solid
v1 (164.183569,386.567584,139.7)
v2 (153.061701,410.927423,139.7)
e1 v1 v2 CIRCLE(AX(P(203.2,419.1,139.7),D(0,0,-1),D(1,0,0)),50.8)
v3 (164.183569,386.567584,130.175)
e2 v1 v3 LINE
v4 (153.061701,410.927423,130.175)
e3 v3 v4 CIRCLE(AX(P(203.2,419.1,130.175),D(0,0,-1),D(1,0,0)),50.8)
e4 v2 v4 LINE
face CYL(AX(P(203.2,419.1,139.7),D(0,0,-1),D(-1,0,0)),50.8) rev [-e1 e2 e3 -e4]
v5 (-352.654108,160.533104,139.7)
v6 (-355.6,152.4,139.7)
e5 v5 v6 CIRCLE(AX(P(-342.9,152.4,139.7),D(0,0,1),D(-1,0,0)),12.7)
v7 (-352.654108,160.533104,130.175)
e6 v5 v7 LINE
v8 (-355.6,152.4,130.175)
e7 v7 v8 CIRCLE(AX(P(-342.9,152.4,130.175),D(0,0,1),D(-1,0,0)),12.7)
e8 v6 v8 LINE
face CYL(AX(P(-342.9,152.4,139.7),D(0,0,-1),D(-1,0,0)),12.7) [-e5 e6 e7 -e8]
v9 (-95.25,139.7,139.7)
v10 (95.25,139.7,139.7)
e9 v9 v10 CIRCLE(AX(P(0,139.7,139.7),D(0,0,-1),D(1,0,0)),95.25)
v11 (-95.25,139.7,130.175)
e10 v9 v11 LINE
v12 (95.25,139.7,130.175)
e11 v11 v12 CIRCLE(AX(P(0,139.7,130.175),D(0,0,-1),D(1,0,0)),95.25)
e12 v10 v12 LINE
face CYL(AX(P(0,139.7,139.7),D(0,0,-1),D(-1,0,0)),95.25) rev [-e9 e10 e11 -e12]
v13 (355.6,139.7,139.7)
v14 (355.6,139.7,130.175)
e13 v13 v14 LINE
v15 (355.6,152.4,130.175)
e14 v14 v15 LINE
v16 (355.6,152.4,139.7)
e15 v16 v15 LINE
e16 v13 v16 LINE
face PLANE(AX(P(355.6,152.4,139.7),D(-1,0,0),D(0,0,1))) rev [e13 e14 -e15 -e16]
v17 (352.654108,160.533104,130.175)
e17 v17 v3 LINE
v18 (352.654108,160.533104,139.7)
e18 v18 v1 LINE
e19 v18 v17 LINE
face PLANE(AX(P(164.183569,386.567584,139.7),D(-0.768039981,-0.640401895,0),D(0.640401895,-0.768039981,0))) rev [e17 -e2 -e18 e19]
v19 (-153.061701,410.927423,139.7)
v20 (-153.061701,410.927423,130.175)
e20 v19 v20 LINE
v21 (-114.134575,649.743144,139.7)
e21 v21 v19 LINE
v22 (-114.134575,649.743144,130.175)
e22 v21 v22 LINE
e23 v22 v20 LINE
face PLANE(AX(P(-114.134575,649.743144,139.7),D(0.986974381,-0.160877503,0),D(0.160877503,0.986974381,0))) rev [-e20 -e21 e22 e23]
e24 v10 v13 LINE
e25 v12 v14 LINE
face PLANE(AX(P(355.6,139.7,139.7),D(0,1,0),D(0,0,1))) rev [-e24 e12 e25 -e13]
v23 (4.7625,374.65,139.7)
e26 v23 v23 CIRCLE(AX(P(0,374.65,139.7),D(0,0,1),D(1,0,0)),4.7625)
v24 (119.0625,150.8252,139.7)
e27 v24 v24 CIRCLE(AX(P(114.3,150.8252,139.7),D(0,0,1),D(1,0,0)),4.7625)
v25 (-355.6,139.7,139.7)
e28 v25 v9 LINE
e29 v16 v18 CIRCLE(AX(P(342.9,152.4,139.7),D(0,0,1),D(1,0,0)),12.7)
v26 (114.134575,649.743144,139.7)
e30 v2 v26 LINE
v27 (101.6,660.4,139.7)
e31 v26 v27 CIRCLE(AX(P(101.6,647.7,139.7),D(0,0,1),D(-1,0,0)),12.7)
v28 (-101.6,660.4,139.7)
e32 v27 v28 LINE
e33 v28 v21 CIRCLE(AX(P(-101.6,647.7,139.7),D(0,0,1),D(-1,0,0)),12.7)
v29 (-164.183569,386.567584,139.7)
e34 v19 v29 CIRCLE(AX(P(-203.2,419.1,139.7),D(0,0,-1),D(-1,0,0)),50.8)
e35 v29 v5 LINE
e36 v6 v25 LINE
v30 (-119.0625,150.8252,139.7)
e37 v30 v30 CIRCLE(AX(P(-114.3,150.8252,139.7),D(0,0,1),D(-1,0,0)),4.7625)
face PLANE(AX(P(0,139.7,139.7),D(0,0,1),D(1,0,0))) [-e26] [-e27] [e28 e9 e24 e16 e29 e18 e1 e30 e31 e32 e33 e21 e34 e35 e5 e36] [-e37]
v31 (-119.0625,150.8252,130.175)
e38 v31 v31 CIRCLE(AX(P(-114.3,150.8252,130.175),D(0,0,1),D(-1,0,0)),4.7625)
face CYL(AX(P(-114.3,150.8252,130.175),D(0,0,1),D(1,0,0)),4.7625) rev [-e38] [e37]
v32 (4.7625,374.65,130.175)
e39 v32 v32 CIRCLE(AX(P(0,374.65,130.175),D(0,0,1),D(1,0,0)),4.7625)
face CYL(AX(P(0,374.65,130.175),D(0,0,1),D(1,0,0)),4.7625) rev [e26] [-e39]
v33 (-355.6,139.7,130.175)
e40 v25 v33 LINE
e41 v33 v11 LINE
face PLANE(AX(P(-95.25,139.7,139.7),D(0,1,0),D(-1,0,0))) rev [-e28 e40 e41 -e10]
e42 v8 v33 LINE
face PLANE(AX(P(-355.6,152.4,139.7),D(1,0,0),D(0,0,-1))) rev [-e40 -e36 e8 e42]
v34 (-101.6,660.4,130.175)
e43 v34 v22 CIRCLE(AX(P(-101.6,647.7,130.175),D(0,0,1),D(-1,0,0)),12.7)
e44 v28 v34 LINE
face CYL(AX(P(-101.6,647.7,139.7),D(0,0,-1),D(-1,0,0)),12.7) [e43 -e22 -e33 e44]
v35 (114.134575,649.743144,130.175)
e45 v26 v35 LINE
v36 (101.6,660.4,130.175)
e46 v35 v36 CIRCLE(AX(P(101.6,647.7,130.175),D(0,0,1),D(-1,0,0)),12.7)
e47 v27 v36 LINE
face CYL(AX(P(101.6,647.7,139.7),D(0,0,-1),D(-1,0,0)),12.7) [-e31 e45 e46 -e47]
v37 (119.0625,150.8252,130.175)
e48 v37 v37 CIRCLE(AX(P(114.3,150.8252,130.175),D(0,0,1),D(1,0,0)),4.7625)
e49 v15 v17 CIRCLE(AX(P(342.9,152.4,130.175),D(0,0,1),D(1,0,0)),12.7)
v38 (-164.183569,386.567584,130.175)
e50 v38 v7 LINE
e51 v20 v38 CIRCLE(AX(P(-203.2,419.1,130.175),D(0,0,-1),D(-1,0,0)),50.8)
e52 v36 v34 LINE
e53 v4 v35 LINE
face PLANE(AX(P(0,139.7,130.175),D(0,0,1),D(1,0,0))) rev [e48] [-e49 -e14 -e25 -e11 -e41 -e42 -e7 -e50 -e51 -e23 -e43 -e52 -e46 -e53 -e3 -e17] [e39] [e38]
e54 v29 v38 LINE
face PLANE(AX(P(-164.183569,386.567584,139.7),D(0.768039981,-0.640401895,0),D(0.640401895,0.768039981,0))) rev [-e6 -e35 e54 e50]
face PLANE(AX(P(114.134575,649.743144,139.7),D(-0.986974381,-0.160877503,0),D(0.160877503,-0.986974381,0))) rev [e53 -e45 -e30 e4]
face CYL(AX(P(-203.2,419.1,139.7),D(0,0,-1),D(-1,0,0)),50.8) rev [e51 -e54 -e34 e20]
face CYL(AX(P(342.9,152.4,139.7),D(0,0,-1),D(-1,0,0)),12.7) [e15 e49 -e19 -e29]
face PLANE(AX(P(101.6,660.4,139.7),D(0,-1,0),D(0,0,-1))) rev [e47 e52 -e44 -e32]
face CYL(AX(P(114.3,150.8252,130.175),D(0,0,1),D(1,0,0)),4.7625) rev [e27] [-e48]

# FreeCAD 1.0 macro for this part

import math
import FreeCAD as App
import Part
import Sketcher
Q = App.Units.Quantity

doc = App.newDocument("Part")
params = doc.addObject("Spreadsheet::Sheet", "Params")
for row, (alias, value) in enumerate([
    ("sketch1_radius", "2 in"),
    ("sketch1_radius2", "0.5 in"),
    ("sketch1_width", "8 in"),
    ("sketch1_radius3", "3.75 in"),
    ("sketch1_height", "0.5 in"),
    ("pad1_length", "0.375 in"),
    ("sketch2_diameter", "0.375 in"),
], start=1):
    params.set(f"A{row}", alias)
    params.set(f"B{row}", "=" + value)
    params.setAlias(f"B{row}", alias)

body = doc.addObject("PartDesign::Body", "Body")

# Sketch on XY plane
sketch1 = body.newObject("Sketcher::SketchObject", "Sketch")
sketch1.AttachmentSupport = (doc.getObject("XY_Plane"), [""])
sketch1.MapMode = "FlatFace"
sketch1.AttachmentOffset = App.Placement(App.Vector(0, 0, 5.125 * 25.4), App.Rotation())
sketch1.addGeometry([
    Part.LineSegment(App.Vector(-114.134575, 649.743144, 0), App.Vector(-153.061701, 410.927423, 0)),  # 0
    Part.ArcOfCircle(Part.Circle(App.Vector(-203.2, 419.1, 0), App.Vector(0, 0, 1), 50.8), math.radians(-39.821794), math.radians(-9.257833)),  # 1
    Part.LineSegment(App.Vector(-164.183569, 386.567584, 0), App.Vector(-352.654108, 160.533104, 0)),  # 2
    Part.ArcOfCircle(Part.Circle(App.Vector(-342.9, 152.4, 0), App.Vector(0, 0, 1), 12.7), math.radians(140.178206), math.radians(180)),  # 3
    Part.LineSegment(App.Vector(-355.6, 152.4, 0), App.Vector(-355.6, 139.7, 0)),  # 4
    Part.LineSegment(App.Vector(-355.6, 139.7, 0), App.Vector(-95.25, 139.7, 0)),  # 5
    Part.ArcOfCircle(Part.Circle(App.Vector(0, 139.7, 0), App.Vector(0, 0, 1), 95.25), math.radians(0), math.radians(180)),  # 6
    Part.LineSegment(App.Vector(95.25, 139.7, 0), App.Vector(355.6, 139.7, 0)),  # 7
    Part.LineSegment(App.Vector(355.6, 139.7, 0), App.Vector(355.6, 152.4, 0)),  # 8
    Part.ArcOfCircle(Part.Circle(App.Vector(342.9, 152.4, 0), App.Vector(0, 0, 1), 12.7), math.radians(0), math.radians(39.821794)),  # 9
    Part.LineSegment(App.Vector(352.654108, 160.533104, 0), App.Vector(164.183569, 386.567584, 0)),  # 10
    Part.ArcOfCircle(Part.Circle(App.Vector(203.2, 419.1, 0), App.Vector(0, 0, 1), 50.8), math.radians(-170.742167), math.radians(-140.178206)),  # 11
    Part.LineSegment(App.Vector(153.061701, 410.927423, 0), App.Vector(114.134575, 649.743144, 0)),  # 12
    Part.ArcOfCircle(Part.Circle(App.Vector(101.6, 647.7, 0), App.Vector(0, 0, 1), 12.7), math.radians(9.257833), math.radians(90)),  # 13
    Part.LineSegment(App.Vector(101.6, 660.4, 0), App.Vector(-101.6, 660.4, 0)),  # 14
    Part.ArcOfCircle(Part.Circle(App.Vector(-101.6, 647.7, 0), App.Vector(0, 0, 1), 12.7), math.radians(90), math.radians(170.742167)),  # 15
], False)
sketch1.addConstraint([
    Sketcher.Constraint("Tangent", 0, 2, 1, 2),
    Sketcher.Constraint("Tangent", 1, 1, 2, 1),
    Sketcher.Constraint("Tangent", 2, 2, 3, 1),
    Sketcher.Constraint("Tangent", 3, 2, 4, 1),
    Sketcher.Constraint("Coincident", 4, 2, 5, 1),
    Sketcher.Constraint("Coincident", 5, 2, 6, 2),
    Sketcher.Constraint("Coincident", 6, 1, 7, 1),
    Sketcher.Constraint("Coincident", 7, 2, 8, 1),
    Sketcher.Constraint("Tangent", 8, 2, 9, 1),
    Sketcher.Constraint("Tangent", 9, 2, 10, 1),
    Sketcher.Constraint("Tangent", 10, 2, 11, 2),
    Sketcher.Constraint("Tangent", 11, 1, 12, 1),
    Sketcher.Constraint("Tangent", 12, 2, 13, 1),
    Sketcher.Constraint("Tangent", 13, 2, 14, 1),
    Sketcher.Constraint("Tangent", 14, 2, 15, 1),
    Sketcher.Constraint("Tangent", 15, 2, 0, 1),
    Sketcher.Constraint("Vertical", 4),
    Sketcher.Constraint("Horizontal", 5),
    Sketcher.Constraint("Horizontal", 7),
    Sketcher.Constraint("Vertical", 8),
    Sketcher.Constraint("Horizontal", 14),
    Sketcher.Constraint("Equal", 3, 9),
    Sketcher.Constraint("Equal", 1, 11),
    Sketcher.Constraint("Equal", 9, 13),
    Sketcher.Constraint("Equal", 13, 15),
    Sketcher.Constraint("Symmetric", 3, 3, 9, 3, -2),
    Sketcher.Constraint("Symmetric", 1, 3, 11, 3, -2),
    Sketcher.Constraint("Symmetric", 5, 2, 6, 1, -2),
    Sketcher.Constraint("Horizontal", 6, 3, 4, 2),
    Sketcher.Constraint("Horizontal", 0, 2, 11, 1),
    Sketcher.Constraint("Radius", 1, Q("2 in")),
    Sketcher.Constraint("Radius", 3, Q("0.5 in")),
    Sketcher.Constraint("DistanceX", 14, 2, 14, 1, Q("8 in")),
    Sketcher.Constraint("Radius", 6, Q("3.75 in")),
    Sketcher.Constraint("DistanceY", 4, 2, 4, 1, Q("0.5 in")),
    Sketcher.Constraint("DistanceX", 1, 3, -1, 1, Q("8 in")),
    Sketcher.Constraint("DistanceY", -1, 1, 3, 3, Q("6 in")),
    Sketcher.Constraint("DistanceX", 3, 2, -1, 1, Q("14 in")),
    Sketcher.Constraint("DistanceY", -1, 1, 13, 2, Q("26 in")),
    Sketcher.Constraint("DistanceY", 6, 3, 1, 3, Q("11 in")),
])
sketch1.setExpression("Constraints[30]", "Params.sketch1_radius")
sketch1.setExpression("Constraints[31]", "Params.sketch1_radius2")
sketch1.setExpression("Constraints[32]", "Params.sketch1_width")
sketch1.setExpression("Constraints[33]", "Params.sketch1_radius3")
sketch1.setExpression("Constraints[34]", "Params.sketch1_height")
pad1 = body.newObject("PartDesign::Pad", "Pad")
pad1.Profile = sketch1
pad1.setExpression("Length", "Params.pad1_length")

# Sketch on XY plane
sketch2 = body.newObject("Sketcher::SketchObject", "Sketch001")
sketch2.AttachmentSupport = (doc.getObject("XY_Plane"), [""])
sketch2.MapMode = "FlatFace"
sketch2.AttachmentOffset = App.Placement(App.Vector(0, 0, 5.5 * 25.4), App.Rotation())
sketch2.addGeometry([
    Part.Circle(App.Vector(0, 374.65, 0), App.Vector(0, 0, 1), 4.7625),
    Part.Circle(App.Vector(114.3, 150.8252, 0), App.Vector(0, 0, 1), 4.7625),
    Part.Circle(App.Vector(-114.3, 150.8252, 0), App.Vector(0, 0, 1), 4.7625),
], False)
sketch2.addConstraint([
    Sketcher.Constraint("Equal", 0, 1),
    Sketcher.Constraint("Equal", 1, 2),
    Sketcher.Constraint("Symmetric", 1, 3, 2, 3, -2),
    Sketcher.Constraint("PointOnObject", 0, 3, -2),
    Sketcher.Constraint("Diameter", 0, Q("0.375 in")),
    Sketcher.Constraint("DistanceX", 2, 3, 1, 3, Q("9 in")),
    Sketcher.Constraint("DistanceY", -1, 1, 0, 3, Q("14.75 in")),
    Sketcher.Constraint("DistanceY", -1, 1, 1, 3, Q("5.938 in")),
])
sketch2.setExpression("Constraints[4]", "Params.sketch2_diameter")
pocket1 = body.newObject("PartDesign::Pocket", "Pocket")
pocket1.Profile = sketch2
pocket1.Type = "ThroughAll"

doc.recompute()
